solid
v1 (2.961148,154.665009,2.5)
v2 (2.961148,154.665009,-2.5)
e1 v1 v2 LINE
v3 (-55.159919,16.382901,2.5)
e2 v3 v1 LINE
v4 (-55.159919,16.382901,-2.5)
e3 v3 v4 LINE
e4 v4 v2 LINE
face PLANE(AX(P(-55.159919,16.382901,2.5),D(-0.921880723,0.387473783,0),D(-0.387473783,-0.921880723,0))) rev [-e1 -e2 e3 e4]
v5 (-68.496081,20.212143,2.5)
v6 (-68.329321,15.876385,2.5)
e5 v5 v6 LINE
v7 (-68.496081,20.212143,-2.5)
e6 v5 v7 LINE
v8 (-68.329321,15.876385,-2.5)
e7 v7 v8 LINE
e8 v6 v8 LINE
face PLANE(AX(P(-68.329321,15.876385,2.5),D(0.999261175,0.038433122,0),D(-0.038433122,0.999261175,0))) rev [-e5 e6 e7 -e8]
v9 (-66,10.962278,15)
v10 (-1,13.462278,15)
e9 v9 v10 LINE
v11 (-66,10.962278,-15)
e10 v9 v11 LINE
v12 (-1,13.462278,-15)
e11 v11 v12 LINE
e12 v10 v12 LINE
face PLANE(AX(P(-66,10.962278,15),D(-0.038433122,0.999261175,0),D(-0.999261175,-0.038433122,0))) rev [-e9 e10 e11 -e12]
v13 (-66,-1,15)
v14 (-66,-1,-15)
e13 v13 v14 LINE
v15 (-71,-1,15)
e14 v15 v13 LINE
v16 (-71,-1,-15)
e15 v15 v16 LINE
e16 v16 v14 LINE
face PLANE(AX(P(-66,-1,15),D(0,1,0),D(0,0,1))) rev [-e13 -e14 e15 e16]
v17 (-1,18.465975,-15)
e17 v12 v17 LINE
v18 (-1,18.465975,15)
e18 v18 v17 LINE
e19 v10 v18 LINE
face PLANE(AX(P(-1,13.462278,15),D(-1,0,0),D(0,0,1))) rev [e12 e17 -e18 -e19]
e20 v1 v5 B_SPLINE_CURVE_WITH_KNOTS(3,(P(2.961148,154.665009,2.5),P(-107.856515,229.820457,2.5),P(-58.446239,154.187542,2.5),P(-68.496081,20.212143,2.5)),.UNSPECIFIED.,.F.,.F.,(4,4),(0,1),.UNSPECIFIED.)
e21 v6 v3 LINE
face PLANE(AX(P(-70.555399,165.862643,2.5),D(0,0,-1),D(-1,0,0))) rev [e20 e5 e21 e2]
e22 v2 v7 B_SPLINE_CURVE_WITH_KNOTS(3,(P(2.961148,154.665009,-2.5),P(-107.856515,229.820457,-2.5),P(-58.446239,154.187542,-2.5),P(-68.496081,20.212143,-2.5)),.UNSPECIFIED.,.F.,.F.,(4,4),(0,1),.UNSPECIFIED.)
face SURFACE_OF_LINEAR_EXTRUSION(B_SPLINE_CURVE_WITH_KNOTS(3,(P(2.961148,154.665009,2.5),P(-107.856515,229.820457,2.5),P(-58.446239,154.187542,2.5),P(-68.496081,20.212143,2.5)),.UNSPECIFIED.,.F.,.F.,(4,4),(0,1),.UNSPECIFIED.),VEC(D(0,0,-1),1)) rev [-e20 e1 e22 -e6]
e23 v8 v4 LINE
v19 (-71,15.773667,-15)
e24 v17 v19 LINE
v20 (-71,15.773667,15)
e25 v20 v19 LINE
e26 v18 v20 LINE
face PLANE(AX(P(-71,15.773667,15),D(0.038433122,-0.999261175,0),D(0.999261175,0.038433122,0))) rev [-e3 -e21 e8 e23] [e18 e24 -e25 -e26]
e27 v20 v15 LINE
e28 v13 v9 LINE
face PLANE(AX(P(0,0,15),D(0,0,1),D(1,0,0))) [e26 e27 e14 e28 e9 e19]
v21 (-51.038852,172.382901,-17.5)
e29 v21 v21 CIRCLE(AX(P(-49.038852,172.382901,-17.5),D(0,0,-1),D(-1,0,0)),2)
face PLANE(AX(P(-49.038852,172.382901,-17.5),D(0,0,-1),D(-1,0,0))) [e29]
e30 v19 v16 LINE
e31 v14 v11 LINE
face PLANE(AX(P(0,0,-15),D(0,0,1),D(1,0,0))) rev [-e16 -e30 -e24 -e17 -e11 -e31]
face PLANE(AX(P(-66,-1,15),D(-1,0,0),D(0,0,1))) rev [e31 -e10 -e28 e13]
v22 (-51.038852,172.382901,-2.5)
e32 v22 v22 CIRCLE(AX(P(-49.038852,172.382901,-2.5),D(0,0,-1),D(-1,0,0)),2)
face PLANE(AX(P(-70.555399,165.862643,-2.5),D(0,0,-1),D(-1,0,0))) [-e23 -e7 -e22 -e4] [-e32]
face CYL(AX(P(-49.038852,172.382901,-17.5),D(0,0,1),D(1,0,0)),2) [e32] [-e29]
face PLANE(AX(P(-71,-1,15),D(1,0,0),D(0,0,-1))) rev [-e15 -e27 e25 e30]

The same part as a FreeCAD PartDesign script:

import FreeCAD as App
import Part
import Sketcher

V = App.Vector

doc = App.newDocument("Part")
params = doc.addObject("Spreadsheet::Sheet", "Params")
for row, (alias, value) in enumerate([
    ("sketch1_width", "5 mm"),
    ("pad1_length", "30 mm"),
    ("sketch2_length", "150 mm"),
    ("pad2_length", "5 mm"),
    ("sketch3_diameter", "4 mm"),
    ("pad3_length", "15 mm"),
], start=1):
    params.set(f"A{row}", alias)
    params.set(f"B{row}", "=" + value)
    params.setAlias(f"B{row}", alias)

body = doc.addObject("PartDesign::Body", "Body")

sketch1 = body.newObject("Sketcher::SketchObject", "Sketch")
sketch1.AttachmentSupport = (doc.getObject("XY_Plane"), [""])
sketch1.MapMode = "FlatFace"
sketch1.addGeometry(Part.LineSegment(V(-66, 11, 0), V(-1, 13, 0)), False)
sketch1.addGeometry(Part.LineSegment(V(-1, 13, 0), V(-1, 18, 0)), False)
sketch1.addGeometry(Part.LineSegment(V(-1, 18, 0), V(-71, 16, 0)), False)
sketch1.addGeometry(Part.LineSegment(V(-71, 16, 0), V(-71, -1, 0)), False)
sketch1.addGeometry(Part.LineSegment(V(-71, -1, 0), V(-66, -1, 0)), False)
sketch1.addGeometry(Part.LineSegment(V(-66, -1, 0), V(-66, 11, 0)), False)
sketch1.addConstraint(Sketcher.Constraint("Coincident", 0, 2, 1, 1))
sketch1.addConstraint(Sketcher.Constraint("Coincident", 1, 2, 2, 1))
sketch1.addConstraint(Sketcher.Constraint("Coincident", 2, 2, 3, 1))
sketch1.addConstraint(Sketcher.Constraint("Coincident", 3, 2, 4, 1))
sketch1.addConstraint(Sketcher.Constraint("Coincident", 4, 2, 5, 1))
sketch1.addConstraint(Sketcher.Constraint("Coincident", 5, 2, 0, 1))
sketch1.addConstraint(Sketcher.Constraint("Vertical", 1))
sketch1.addConstraint(Sketcher.Constraint("Vertical", 3))
sketch1.addConstraint(Sketcher.Constraint("Horizontal", 4))
sketch1.addConstraint(Sketcher.Constraint("Vertical", 5))
sketch1.addConstraint(Sketcher.Constraint("Parallel", 0, 2))
sketch1.addConstraint(Sketcher.Constraint("DistanceX", 4, 1, 4, 2, 5.0))
sketch1.addConstraint(Sketcher.Constraint("DistanceX", 0, 2, -1, 1, 1.0))
sketch1.addConstraint(Sketcher.Constraint("DistanceX", 2, 2, -1, 1, 71.0))
sketch1.addConstraint(Sketcher.Constraint("DistanceY", 3, 2, -1, 1, 1.0))
sketch1.addConstraint(Sketcher.Constraint("DistanceY", 5, 2, 0, 2, 2.5))
sketch1.addConstraint(Sketcher.Constraint("DistanceY", 1, 1, 1, 2, 5.003697))
sketch1.addConstraint(Sketcher.Constraint("DistanceY", 3, 2, 3, 1, 16.773667))
sketch1.setExpression("Constraints[11]", "Params.sketch1_width")
pad1 = body.newObject("PartDesign::Pad", "Pad")
pad1.Profile = sketch1
pad1.setExpression("Length", "Params.pad1_length")
pad1.Midplane = True

sketch2 = body.newObject("Sketcher::SketchObject", "Sketch001")
sketch2.AttachmentSupport = (doc.getObject("XY_Plane"), [""])
sketch2.MapMode = "FlatFace"
sketch2.addGeometry(Part.LineSegment(V(-68.496081, 20.212143, 0), V(-68.329321, 15.876385, 0)), False)
sketch2.addGeometry(Part.LineSegment(V(-68.329321, 15.876385, 0), V(-55.159919, 16.382901, 0)), False)
sketch2.addGeometry(Part.LineSegment(V(-55.159919, 16.382901, 0), V(2.961148, 154.665009, 0)), False)
sketch2.addGeometry(Part.BSplineCurve([V(-68.496081, 20.212143, 0), V(-58.446239, 154.187542, 0), V(-107.856515, 229.820457, 0), V(2.961148, 154.665009, 0)], [4, 4], [0, 1], False, 3, [1, 1, 1, 1], False), False)
sketch2.addConstraint(Sketcher.Constraint("Block", 3))
sketch2.addConstraint(Sketcher.Constraint("Coincident", 0, 2, 1, 1))
sketch2.addConstraint(Sketcher.Constraint("Coincident", 1, 2, 2, 1))
sketch2.addConstraint(Sketcher.Constraint("Coincident", 2, 2, 3, 2))
sketch2.addConstraint(Sketcher.Constraint("Coincident", 3, 1, 0, 1))
sketch2.addConstraint(Sketcher.Constraint("Distance", 2, 150.0))
sketch2.addConstraint(Sketcher.Constraint("DistanceY", -1, 1, 1, 2, 16.382901))
sketch2.addConstraint(Sketcher.Constraint("DistanceX", 0, 2, 1, 2, 13.169401))
sketch2.addConstraint(Sketcher.Constraint("Distance", 1, 13.179138))
sketch2.setExpression("Constraints[5]", "Params.sketch2_length")
pad2 = body.newObject("PartDesign::Pad", "Pad001")
pad2.Profile = sketch2
pad2.setExpression("Length", "Params.pad2_length")
pad2.Midplane = True

sketch3 = body.newObject("Sketcher::SketchObject", "Sketch002")
sketch3.AttachmentSupport = (doc.getObject("XY_Plane"), [""])
sketch3.MapMode = "FlatFace"
sketch3.AttachmentOffset = App.Placement(V(0, 0, -2.5), App.Rotation())
sketch3.addGeometry(Part.Circle(V(-49, 172.4, 0), V(0, 0, 1), 2), False)
sketch3.addConstraint(Sketcher.Constraint("Diameter", 0, 4.0))
sketch3.addConstraint(Sketcher.Constraint("DistanceY", -1, 1, 0, 3, 172.382901))
sketch3.addConstraint(Sketcher.Constraint("DistanceX", 0, 3, -1, 1, 49.038852))
sketch3.setExpression("Constraints[0]", "Params.sketch3_diameter")
pad3 = body.newObject("PartDesign::Pad", "Pad002")
pad3.Profile = sketch3
pad3.setExpression("Length", "Params.pad3_length")
pad3.Reversed = True

doc.recompute()
